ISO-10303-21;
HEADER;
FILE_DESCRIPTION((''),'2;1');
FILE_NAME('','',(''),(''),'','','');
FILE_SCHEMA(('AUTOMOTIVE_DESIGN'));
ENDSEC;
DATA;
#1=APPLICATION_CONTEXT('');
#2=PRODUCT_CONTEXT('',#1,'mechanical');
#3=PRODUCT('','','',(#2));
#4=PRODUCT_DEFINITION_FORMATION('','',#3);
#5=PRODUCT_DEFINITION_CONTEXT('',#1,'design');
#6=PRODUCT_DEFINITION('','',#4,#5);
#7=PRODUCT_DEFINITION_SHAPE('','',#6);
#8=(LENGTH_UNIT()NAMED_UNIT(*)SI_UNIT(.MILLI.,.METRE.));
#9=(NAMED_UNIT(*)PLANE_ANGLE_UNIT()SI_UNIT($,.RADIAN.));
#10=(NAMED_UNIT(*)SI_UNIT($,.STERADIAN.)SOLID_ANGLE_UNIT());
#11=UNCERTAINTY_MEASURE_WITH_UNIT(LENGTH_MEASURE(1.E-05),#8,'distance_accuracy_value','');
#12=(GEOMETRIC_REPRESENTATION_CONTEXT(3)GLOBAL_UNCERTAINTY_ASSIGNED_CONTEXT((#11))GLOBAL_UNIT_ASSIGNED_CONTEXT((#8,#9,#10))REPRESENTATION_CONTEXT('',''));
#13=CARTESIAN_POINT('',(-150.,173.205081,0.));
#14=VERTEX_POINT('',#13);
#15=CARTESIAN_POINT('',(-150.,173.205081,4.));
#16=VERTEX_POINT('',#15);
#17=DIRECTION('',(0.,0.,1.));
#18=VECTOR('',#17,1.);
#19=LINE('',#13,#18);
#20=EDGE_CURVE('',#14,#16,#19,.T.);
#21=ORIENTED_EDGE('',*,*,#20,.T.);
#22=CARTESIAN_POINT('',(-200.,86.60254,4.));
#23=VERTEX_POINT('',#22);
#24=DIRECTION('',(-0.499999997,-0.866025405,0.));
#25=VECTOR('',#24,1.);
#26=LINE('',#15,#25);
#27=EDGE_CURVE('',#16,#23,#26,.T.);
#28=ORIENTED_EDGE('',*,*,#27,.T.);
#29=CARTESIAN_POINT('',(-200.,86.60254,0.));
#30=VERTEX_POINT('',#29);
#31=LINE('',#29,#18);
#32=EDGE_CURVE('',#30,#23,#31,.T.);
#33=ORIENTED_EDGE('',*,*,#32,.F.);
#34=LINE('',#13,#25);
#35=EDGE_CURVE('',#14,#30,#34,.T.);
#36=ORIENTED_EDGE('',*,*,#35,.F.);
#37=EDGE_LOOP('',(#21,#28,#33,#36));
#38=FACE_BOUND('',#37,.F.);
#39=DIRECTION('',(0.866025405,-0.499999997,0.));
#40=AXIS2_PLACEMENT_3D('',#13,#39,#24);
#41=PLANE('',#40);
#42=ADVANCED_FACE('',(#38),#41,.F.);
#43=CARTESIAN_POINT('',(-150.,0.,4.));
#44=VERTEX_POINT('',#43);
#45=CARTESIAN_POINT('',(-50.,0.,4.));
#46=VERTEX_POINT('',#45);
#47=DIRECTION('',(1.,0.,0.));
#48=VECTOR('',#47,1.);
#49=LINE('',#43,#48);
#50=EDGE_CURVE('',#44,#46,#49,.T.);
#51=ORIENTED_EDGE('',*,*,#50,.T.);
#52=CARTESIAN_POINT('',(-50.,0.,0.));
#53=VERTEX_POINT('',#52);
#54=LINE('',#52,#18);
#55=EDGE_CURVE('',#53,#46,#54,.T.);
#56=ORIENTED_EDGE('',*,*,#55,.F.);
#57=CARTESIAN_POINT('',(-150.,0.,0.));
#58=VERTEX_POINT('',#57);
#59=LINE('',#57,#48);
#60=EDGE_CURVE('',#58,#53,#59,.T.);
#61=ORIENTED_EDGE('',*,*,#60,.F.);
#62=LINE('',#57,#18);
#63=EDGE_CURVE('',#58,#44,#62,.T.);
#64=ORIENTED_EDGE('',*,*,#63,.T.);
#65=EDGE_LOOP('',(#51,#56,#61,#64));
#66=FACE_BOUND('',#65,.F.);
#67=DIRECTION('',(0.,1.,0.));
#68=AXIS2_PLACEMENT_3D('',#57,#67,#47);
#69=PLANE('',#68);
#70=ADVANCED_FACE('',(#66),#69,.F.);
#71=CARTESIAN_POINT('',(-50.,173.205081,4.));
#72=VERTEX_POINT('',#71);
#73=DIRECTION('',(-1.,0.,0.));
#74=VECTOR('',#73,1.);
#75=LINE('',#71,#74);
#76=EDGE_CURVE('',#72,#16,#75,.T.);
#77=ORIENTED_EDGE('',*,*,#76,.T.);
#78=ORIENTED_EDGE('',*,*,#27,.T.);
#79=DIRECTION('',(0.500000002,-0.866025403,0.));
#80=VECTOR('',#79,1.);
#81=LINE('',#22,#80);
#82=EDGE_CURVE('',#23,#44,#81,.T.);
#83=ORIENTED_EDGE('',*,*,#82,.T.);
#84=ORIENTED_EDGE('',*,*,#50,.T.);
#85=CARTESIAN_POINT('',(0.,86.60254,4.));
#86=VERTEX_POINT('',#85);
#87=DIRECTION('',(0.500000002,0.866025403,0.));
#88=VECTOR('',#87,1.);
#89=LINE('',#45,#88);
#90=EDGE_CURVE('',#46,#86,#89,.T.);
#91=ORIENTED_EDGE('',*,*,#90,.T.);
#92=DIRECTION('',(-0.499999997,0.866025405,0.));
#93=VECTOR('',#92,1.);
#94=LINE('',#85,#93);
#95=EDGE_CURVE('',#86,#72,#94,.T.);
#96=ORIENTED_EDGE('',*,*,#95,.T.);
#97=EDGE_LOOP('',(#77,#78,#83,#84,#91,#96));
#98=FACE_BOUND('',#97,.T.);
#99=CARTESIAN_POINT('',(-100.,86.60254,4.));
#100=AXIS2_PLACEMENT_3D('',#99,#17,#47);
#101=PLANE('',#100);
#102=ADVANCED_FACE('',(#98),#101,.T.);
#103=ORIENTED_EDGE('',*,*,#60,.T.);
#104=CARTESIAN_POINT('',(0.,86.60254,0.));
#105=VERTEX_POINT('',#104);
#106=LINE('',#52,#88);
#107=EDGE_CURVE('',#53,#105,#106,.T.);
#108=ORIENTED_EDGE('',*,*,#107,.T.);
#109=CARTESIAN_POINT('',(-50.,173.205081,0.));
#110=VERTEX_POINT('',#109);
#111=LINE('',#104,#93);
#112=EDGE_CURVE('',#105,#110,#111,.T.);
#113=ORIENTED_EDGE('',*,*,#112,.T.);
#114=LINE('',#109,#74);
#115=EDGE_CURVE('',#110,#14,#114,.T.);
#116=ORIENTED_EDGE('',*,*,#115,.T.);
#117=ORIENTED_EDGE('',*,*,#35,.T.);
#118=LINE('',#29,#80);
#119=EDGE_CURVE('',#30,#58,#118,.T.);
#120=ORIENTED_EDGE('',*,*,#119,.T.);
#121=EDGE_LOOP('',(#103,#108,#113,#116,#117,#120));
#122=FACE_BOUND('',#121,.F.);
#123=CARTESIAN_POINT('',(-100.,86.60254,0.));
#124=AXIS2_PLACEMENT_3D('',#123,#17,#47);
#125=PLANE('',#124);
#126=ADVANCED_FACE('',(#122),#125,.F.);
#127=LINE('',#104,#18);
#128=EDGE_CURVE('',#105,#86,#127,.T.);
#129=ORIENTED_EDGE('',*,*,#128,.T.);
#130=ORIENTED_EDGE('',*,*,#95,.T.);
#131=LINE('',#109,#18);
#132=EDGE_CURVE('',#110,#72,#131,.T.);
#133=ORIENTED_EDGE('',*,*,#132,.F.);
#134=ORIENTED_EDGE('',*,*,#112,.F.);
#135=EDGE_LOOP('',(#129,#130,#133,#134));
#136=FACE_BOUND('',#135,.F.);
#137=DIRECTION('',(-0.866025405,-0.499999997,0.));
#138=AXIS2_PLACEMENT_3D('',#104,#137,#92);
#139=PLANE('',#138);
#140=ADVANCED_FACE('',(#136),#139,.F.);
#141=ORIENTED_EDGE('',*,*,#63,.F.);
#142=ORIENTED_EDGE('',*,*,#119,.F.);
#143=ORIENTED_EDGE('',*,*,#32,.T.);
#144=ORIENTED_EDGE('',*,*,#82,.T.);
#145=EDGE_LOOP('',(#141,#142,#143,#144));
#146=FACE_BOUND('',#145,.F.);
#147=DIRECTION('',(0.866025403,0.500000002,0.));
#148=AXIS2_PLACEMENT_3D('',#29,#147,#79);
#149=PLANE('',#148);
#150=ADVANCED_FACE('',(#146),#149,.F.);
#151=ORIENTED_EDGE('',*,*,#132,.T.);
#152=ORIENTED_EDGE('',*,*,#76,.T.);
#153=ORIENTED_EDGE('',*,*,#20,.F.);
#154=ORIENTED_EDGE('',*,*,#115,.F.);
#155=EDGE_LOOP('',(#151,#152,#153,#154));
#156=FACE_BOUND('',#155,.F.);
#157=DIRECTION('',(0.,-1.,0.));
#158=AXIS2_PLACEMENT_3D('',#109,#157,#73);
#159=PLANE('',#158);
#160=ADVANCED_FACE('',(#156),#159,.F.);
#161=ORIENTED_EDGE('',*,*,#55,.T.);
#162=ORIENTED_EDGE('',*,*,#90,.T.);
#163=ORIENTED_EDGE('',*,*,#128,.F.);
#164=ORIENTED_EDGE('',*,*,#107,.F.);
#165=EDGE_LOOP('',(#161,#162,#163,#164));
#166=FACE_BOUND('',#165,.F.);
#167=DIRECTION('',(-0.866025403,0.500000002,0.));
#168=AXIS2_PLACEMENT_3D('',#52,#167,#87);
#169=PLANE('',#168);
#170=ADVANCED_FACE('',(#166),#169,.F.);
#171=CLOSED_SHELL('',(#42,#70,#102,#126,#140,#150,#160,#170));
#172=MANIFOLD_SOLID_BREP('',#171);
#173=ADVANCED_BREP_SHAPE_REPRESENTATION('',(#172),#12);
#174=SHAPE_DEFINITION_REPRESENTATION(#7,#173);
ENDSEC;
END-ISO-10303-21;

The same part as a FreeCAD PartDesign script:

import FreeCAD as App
import Part
import Sketcher
Q = App.Units.Quantity


def add_polygon(sketch, points):
    """Adds a closed chain of lines whose ends are joined by coincident constraints."""
    first, n = sketch.GeometryCount, len(points)
    for a, b in zip(points, points[1:] + points[:1]):
        sketch.addGeometry(Part.LineSegment(App.Vector(*a, 0), App.Vector(*b, 0)), False)
    for i in range(n):
        sketch.addConstraint(Sketcher.Constraint("Coincident", first + i, 2, first + (i + 1) % n, 1))

doc = App.newDocument("Part")
body = doc.addObject("PartDesign::Body", "Body")

# Sketch on XY plane
sketch1 = body.newObject("Sketcher::SketchObject", "Sketch")
sketch1.AttachmentSupport = (doc.getObject("XY_Plane"), [""])
sketch1.MapMode = "FlatFace"
add_polygon(sketch1, [(-50, 0), (0, 87), (-50, 173), (-150, 173), (-200, 87), (-150, 0)])  # lines 0-5
sketch1.addConstraint(Sketcher.Constraint("Horizontal", 2))
sketch1.addConstraint(Sketcher.Constraint("Horizontal", 5))
sketch1.addConstraint(Sketcher.Constraint("PointOnObject", 0, 2, -2))
sketch1.addConstraint(Sketcher.Constraint("PointOnObject", 4, 2, -1))
sketch1.addConstraint(Sketcher.Constraint("Parallel", 0, 3))
sketch1.addConstraint(Sketcher.Constraint("Parallel", 1, 4))
sketch1.addConstraint(Sketcher.Constraint("Horizontal", 0, 2, 3, 2))
sketch1.addConstraint(Sketcher.Constraint("Vertical", 2, 2, 4, 2))
sketch1.addConstraint(Sketcher.Constraint("Vertical", 1, 2, 5, 2))
sketch1.addConstraint(Sketcher.Constraint("DistanceX", 2, 2, 2, 1, 100.0))
sketch1.addConstraint(Sketcher.Constraint("Angle", 0, Q("60 deg")))
sketch1.addConstraint(Sketcher.Constraint("Distance", 0, 100.0))
pad1 = body.newObject("PartDesign::Pad", "Pad")
pad1.Profile = sketch1
pad1.Length = 4

doc.recompute()
